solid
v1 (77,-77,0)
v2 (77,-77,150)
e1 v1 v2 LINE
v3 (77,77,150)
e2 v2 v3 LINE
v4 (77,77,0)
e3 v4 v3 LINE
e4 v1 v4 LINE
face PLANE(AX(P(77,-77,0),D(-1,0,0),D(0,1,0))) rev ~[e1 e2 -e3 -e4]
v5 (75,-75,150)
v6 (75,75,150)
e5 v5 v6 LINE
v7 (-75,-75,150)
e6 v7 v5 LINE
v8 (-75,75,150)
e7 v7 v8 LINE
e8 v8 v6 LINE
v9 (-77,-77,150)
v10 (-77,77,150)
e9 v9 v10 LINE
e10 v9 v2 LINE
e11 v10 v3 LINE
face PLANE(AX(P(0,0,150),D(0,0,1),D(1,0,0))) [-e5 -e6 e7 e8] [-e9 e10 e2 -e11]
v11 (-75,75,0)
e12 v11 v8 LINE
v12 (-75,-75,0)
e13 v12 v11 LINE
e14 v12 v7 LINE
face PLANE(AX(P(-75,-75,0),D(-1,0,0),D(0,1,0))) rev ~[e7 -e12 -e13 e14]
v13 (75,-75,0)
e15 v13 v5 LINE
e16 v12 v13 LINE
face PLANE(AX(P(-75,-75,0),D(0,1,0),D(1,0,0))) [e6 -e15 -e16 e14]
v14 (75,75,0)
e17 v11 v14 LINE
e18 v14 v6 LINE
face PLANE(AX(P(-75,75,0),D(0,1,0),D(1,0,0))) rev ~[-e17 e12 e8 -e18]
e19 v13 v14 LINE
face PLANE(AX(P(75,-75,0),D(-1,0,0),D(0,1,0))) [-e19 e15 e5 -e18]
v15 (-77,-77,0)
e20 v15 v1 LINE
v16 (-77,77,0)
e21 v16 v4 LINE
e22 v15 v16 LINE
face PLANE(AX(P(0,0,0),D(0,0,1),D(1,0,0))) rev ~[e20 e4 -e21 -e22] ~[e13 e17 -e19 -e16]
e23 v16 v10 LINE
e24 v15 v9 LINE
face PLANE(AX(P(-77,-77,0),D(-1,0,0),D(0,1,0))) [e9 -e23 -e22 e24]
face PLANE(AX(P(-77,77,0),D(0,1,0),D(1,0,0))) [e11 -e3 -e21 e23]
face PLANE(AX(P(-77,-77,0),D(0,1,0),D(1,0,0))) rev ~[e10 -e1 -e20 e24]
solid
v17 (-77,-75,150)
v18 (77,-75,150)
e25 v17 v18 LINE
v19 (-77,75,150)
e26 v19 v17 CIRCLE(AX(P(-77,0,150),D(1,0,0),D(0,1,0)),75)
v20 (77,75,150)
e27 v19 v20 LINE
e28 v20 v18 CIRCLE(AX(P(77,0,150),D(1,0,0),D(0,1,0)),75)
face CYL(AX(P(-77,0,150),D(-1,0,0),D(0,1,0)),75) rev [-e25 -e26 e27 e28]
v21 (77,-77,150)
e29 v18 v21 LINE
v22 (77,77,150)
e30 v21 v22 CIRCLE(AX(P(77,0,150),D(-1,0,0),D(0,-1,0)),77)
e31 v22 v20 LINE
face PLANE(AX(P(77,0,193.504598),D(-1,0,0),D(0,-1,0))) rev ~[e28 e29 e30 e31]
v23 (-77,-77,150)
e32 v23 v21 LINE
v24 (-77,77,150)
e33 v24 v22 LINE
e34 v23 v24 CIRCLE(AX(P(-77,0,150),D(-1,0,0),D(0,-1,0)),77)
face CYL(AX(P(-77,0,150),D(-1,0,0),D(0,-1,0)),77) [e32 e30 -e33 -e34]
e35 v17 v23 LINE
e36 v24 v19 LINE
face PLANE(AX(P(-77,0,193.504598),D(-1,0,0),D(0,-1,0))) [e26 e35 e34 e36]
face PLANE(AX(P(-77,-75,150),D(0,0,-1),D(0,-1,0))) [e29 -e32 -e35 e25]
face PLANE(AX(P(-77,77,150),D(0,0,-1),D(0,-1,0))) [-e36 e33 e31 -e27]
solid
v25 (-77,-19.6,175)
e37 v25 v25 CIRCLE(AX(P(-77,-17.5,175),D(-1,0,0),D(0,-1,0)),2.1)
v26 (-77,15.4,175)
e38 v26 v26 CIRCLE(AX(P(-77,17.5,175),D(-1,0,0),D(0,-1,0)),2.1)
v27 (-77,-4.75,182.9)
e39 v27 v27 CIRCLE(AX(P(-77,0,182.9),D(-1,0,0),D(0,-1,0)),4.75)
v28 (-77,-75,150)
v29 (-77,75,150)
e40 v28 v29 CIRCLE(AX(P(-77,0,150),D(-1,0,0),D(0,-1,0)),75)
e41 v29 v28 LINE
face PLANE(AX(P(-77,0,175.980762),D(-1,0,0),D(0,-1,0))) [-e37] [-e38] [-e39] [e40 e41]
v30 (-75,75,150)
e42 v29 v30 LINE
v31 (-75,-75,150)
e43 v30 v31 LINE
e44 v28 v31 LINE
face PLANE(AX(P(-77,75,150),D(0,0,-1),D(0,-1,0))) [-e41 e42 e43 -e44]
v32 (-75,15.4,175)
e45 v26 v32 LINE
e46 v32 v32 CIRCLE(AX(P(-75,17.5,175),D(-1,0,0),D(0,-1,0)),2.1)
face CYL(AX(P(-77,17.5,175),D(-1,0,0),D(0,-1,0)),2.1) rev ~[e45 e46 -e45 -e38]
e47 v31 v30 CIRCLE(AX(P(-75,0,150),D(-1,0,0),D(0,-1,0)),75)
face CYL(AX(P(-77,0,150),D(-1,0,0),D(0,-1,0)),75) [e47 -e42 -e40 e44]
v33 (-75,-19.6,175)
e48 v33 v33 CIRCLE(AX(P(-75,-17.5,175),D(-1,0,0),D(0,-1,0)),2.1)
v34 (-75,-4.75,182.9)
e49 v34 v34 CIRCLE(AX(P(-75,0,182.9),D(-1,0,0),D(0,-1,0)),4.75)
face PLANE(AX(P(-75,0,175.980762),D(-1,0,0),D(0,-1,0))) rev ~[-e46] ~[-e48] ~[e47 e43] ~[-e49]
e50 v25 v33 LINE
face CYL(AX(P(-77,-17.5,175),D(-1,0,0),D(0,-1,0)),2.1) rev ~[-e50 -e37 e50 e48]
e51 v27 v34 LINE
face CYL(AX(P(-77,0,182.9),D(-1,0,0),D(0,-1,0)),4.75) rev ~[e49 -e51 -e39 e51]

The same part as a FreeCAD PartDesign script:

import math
import FreeCAD as App
import Part
import Sketcher

doc = App.newDocument("Part")
body = doc.addObject("PartDesign::Body", "Body")

sketch1 = body.newObject("Sketcher::SketchObject", "Sketch")
sketch1.AttachmentSupport = (doc.getObject("XY_Plane"), [""])
sketch1.MapMode = "FlatFace"
sketch1.addGeometry([
    Part.LineSegment(App.Vector(-77, 77, 0), App.Vector(-77, -77, 0)),
    Part.LineSegment(App.Vector(-77, -77, 0), App.Vector(77, -77, 0)),
    Part.LineSegment(App.Vector(77, -77, 0), App.Vector(77, 77, 0)),
    Part.LineSegment(App.Vector(77, 77, 0), App.Vector(-77, 77, 0)),
    Part.LineSegment(App.Vector(75, -75, 0), App.Vector(-75, -75, 0)),
    Part.LineSegment(App.Vector(-75, -75, 0), App.Vector(-75, 75, 0)),
    Part.LineSegment(App.Vector(-75, 75, 0), App.Vector(75, 75, 0)),
    Part.LineSegment(App.Vector(75, 75, 0), App.Vector(75, -75, 0)),
], False)
sketch1.addConstraint([
    Sketcher.Constraint("Coincident", 0, 2, 1, 1),
    Sketcher.Constraint("Coincident", 1, 2, 2, 1),
    Sketcher.Constraint("Coincident", 2, 2, 3, 1),
    Sketcher.Constraint("Coincident", 3, 2, 0, 1),
    Sketcher.Constraint("Coincident", 4, 2, 5, 1),
    Sketcher.Constraint("Coincident", 5, 2, 6, 1),
    Sketcher.Constraint("Coincident", 6, 2, 7, 1),
    Sketcher.Constraint("Coincident", 7, 2, 4, 1),
    Sketcher.Constraint("Vertical", 0),
    Sketcher.Constraint("Horizontal", 1),
    Sketcher.Constraint("Vertical", 2),
    Sketcher.Constraint("Horizontal", 3),
    Sketcher.Constraint("Horizontal", 4),
    Sketcher.Constraint("Vertical", 5),
    Sketcher.Constraint("Horizontal", 6),
    Sketcher.Constraint("Vertical", 7),
    Sketcher.Constraint("Symmetric", 0, 2, 2, 2, -1, 1),
    Sketcher.Constraint("Symmetric", 4, 2, 6, 2, -1, 1),
    Sketcher.Constraint("Equal", 3, 0),
    Sketcher.Constraint("Equal", 6, 5),
    Sketcher.Constraint("DistanceX", 1, 1, 1, 2, 154.0),
    Sketcher.Constraint("DistanceX", 4, 2, 4, 1, 150.0),
])
pad1 = body.newObject("PartDesign::Pad", "Pad")
pad1.Profile = sketch1
pad1.Length = 150
body2 = doc.addObject("PartDesign::Body", "Body001")

sketch2 = body2.newObject("Sketcher::SketchObject", "Sketch001")
sketch2.AttachmentSupport = (doc.getObject("YZ_Plane001"), [""])
sketch2.MapMode = "FlatFace"
sketch2.AttachmentOffset = App.Placement(App.Vector(0, 0, -77), App.Rotation())
sketch2.addGeometry([
    Part.ArcOfCircle(Part.Circle(App.Vector(0, 150, 0), App.Vector(0, 0, 1), 75), math.radians(0), math.radians(180)),
    Part.LineSegment(App.Vector(-75, 150, 0), App.Vector(-77, 150, 0)),
    Part.ArcOfCircle(Part.Circle(App.Vector(0, 150, 0), App.Vector(0, 0, 1), 77), math.radians(0), math.radians(180)),
    Part.LineSegment(App.Vector(77, 150, 0), App.Vector(75, 150, 0)),
], False)
sketch2.addConstraint([
    Sketcher.Constraint("Coincident", 0, 2, 1, 1),
    Sketcher.Constraint("Coincident", 1, 2, 2, 2),
    Sketcher.Constraint("Coincident", 2, 1, 3, 1),
    Sketcher.Constraint("Coincident", 3, 2, 0, 1),
    Sketcher.Constraint("Horizontal", 1),
    Sketcher.Constraint("Horizontal", 3),
    Sketcher.Constraint("Coincident", 2, 3, 0, 3),
    Sketcher.Constraint("Symmetric", 1, 2, 2, 1, -2),
    Sketcher.Constraint("Horizontal", 2, 3, 0, 2),
    Sketcher.Constraint("Radius", 0, 75.0),
    Sketcher.Constraint("Radius", 2, 77.0),
    Sketcher.Constraint("DistanceY", -1, 1, 0, 3, 150.0),
])
pad2 = body2.newObject("PartDesign::Pad", "Pad001")
pad2.Profile = sketch2
pad2.Length = 154
body3 = doc.addObject("PartDesign::Body", "Body002")

sketch3 = body3.newObject("Sketcher::SketchObject", "Sketch002")
sketch3.AttachmentSupport = (doc.getObject("YZ_Plane002"), [""])
sketch3.MapMode = "FlatFace"
sketch3.AttachmentOffset = App.Placement(App.Vector(0, 0, -77), App.Rotation())
sketch3.addGeometry([
    Part.LineSegment(App.Vector(75, 150, 0), App.Vector(-75, 150, 0)),
    Part.ArcOfCircle(Part.Circle(App.Vector(0, 150, 0), App.Vector(0, 0, 1), 75), math.radians(0), math.radians(180)),
    Part.Circle(App.Vector(17.5, 175, 0), App.Vector(0, 0, 1), 2.1),
    Part.Circle(App.Vector(-17.5, 175, 0), App.Vector(0, 0, 1), 2.1),
    Part.Circle(App.Vector(0, 182.9, 0), App.Vector(0, 0, 1), 4.75),
], False)
sketch3.addConstraint([
    Sketcher.Constraint("Coincident", 0, 1, 1, 1),
    Sketcher.Constraint("Coincident", 1, 2, 0, 2),
    Sketcher.Constraint("Horizontal", 0),
    Sketcher.Constraint("Equal", 2, 3),
    Sketcher.Constraint("Symmetric", 2, 3, 3, 3, -2),
    Sketcher.Constraint("PointOnObject", 1, 3, -2),
    Sketcher.Constraint("PointOnObject", 4, 3, -2),
    Sketcher.Constraint("Horizontal", 1, 3, 0, 1),
    Sketcher.Constraint("Radius", 1, 75.0),
    Sketcher.Constraint("Diameter", 2, 4.2),
    Sketcher.Constraint("Diameter", 4, 9.5),
    Sketcher.Constraint("DistanceY", -1, 1, 1, 3, 150.0),
    Sketcher.Constraint("DistanceY", -1, 1, 2, 3, 175.0),
    Sketcher.Constraint("DistanceX", 3, 3, 2, 3, 35.0),
    Sketcher.Constraint("DistanceY", -1, 1, 4, 3, 182.9),
])
pad3 = body3.newObject("PartDesign::Pad", "Pad002")
pad3.Profile = sketch3
pad3.Length = 2

doc.recompute()
